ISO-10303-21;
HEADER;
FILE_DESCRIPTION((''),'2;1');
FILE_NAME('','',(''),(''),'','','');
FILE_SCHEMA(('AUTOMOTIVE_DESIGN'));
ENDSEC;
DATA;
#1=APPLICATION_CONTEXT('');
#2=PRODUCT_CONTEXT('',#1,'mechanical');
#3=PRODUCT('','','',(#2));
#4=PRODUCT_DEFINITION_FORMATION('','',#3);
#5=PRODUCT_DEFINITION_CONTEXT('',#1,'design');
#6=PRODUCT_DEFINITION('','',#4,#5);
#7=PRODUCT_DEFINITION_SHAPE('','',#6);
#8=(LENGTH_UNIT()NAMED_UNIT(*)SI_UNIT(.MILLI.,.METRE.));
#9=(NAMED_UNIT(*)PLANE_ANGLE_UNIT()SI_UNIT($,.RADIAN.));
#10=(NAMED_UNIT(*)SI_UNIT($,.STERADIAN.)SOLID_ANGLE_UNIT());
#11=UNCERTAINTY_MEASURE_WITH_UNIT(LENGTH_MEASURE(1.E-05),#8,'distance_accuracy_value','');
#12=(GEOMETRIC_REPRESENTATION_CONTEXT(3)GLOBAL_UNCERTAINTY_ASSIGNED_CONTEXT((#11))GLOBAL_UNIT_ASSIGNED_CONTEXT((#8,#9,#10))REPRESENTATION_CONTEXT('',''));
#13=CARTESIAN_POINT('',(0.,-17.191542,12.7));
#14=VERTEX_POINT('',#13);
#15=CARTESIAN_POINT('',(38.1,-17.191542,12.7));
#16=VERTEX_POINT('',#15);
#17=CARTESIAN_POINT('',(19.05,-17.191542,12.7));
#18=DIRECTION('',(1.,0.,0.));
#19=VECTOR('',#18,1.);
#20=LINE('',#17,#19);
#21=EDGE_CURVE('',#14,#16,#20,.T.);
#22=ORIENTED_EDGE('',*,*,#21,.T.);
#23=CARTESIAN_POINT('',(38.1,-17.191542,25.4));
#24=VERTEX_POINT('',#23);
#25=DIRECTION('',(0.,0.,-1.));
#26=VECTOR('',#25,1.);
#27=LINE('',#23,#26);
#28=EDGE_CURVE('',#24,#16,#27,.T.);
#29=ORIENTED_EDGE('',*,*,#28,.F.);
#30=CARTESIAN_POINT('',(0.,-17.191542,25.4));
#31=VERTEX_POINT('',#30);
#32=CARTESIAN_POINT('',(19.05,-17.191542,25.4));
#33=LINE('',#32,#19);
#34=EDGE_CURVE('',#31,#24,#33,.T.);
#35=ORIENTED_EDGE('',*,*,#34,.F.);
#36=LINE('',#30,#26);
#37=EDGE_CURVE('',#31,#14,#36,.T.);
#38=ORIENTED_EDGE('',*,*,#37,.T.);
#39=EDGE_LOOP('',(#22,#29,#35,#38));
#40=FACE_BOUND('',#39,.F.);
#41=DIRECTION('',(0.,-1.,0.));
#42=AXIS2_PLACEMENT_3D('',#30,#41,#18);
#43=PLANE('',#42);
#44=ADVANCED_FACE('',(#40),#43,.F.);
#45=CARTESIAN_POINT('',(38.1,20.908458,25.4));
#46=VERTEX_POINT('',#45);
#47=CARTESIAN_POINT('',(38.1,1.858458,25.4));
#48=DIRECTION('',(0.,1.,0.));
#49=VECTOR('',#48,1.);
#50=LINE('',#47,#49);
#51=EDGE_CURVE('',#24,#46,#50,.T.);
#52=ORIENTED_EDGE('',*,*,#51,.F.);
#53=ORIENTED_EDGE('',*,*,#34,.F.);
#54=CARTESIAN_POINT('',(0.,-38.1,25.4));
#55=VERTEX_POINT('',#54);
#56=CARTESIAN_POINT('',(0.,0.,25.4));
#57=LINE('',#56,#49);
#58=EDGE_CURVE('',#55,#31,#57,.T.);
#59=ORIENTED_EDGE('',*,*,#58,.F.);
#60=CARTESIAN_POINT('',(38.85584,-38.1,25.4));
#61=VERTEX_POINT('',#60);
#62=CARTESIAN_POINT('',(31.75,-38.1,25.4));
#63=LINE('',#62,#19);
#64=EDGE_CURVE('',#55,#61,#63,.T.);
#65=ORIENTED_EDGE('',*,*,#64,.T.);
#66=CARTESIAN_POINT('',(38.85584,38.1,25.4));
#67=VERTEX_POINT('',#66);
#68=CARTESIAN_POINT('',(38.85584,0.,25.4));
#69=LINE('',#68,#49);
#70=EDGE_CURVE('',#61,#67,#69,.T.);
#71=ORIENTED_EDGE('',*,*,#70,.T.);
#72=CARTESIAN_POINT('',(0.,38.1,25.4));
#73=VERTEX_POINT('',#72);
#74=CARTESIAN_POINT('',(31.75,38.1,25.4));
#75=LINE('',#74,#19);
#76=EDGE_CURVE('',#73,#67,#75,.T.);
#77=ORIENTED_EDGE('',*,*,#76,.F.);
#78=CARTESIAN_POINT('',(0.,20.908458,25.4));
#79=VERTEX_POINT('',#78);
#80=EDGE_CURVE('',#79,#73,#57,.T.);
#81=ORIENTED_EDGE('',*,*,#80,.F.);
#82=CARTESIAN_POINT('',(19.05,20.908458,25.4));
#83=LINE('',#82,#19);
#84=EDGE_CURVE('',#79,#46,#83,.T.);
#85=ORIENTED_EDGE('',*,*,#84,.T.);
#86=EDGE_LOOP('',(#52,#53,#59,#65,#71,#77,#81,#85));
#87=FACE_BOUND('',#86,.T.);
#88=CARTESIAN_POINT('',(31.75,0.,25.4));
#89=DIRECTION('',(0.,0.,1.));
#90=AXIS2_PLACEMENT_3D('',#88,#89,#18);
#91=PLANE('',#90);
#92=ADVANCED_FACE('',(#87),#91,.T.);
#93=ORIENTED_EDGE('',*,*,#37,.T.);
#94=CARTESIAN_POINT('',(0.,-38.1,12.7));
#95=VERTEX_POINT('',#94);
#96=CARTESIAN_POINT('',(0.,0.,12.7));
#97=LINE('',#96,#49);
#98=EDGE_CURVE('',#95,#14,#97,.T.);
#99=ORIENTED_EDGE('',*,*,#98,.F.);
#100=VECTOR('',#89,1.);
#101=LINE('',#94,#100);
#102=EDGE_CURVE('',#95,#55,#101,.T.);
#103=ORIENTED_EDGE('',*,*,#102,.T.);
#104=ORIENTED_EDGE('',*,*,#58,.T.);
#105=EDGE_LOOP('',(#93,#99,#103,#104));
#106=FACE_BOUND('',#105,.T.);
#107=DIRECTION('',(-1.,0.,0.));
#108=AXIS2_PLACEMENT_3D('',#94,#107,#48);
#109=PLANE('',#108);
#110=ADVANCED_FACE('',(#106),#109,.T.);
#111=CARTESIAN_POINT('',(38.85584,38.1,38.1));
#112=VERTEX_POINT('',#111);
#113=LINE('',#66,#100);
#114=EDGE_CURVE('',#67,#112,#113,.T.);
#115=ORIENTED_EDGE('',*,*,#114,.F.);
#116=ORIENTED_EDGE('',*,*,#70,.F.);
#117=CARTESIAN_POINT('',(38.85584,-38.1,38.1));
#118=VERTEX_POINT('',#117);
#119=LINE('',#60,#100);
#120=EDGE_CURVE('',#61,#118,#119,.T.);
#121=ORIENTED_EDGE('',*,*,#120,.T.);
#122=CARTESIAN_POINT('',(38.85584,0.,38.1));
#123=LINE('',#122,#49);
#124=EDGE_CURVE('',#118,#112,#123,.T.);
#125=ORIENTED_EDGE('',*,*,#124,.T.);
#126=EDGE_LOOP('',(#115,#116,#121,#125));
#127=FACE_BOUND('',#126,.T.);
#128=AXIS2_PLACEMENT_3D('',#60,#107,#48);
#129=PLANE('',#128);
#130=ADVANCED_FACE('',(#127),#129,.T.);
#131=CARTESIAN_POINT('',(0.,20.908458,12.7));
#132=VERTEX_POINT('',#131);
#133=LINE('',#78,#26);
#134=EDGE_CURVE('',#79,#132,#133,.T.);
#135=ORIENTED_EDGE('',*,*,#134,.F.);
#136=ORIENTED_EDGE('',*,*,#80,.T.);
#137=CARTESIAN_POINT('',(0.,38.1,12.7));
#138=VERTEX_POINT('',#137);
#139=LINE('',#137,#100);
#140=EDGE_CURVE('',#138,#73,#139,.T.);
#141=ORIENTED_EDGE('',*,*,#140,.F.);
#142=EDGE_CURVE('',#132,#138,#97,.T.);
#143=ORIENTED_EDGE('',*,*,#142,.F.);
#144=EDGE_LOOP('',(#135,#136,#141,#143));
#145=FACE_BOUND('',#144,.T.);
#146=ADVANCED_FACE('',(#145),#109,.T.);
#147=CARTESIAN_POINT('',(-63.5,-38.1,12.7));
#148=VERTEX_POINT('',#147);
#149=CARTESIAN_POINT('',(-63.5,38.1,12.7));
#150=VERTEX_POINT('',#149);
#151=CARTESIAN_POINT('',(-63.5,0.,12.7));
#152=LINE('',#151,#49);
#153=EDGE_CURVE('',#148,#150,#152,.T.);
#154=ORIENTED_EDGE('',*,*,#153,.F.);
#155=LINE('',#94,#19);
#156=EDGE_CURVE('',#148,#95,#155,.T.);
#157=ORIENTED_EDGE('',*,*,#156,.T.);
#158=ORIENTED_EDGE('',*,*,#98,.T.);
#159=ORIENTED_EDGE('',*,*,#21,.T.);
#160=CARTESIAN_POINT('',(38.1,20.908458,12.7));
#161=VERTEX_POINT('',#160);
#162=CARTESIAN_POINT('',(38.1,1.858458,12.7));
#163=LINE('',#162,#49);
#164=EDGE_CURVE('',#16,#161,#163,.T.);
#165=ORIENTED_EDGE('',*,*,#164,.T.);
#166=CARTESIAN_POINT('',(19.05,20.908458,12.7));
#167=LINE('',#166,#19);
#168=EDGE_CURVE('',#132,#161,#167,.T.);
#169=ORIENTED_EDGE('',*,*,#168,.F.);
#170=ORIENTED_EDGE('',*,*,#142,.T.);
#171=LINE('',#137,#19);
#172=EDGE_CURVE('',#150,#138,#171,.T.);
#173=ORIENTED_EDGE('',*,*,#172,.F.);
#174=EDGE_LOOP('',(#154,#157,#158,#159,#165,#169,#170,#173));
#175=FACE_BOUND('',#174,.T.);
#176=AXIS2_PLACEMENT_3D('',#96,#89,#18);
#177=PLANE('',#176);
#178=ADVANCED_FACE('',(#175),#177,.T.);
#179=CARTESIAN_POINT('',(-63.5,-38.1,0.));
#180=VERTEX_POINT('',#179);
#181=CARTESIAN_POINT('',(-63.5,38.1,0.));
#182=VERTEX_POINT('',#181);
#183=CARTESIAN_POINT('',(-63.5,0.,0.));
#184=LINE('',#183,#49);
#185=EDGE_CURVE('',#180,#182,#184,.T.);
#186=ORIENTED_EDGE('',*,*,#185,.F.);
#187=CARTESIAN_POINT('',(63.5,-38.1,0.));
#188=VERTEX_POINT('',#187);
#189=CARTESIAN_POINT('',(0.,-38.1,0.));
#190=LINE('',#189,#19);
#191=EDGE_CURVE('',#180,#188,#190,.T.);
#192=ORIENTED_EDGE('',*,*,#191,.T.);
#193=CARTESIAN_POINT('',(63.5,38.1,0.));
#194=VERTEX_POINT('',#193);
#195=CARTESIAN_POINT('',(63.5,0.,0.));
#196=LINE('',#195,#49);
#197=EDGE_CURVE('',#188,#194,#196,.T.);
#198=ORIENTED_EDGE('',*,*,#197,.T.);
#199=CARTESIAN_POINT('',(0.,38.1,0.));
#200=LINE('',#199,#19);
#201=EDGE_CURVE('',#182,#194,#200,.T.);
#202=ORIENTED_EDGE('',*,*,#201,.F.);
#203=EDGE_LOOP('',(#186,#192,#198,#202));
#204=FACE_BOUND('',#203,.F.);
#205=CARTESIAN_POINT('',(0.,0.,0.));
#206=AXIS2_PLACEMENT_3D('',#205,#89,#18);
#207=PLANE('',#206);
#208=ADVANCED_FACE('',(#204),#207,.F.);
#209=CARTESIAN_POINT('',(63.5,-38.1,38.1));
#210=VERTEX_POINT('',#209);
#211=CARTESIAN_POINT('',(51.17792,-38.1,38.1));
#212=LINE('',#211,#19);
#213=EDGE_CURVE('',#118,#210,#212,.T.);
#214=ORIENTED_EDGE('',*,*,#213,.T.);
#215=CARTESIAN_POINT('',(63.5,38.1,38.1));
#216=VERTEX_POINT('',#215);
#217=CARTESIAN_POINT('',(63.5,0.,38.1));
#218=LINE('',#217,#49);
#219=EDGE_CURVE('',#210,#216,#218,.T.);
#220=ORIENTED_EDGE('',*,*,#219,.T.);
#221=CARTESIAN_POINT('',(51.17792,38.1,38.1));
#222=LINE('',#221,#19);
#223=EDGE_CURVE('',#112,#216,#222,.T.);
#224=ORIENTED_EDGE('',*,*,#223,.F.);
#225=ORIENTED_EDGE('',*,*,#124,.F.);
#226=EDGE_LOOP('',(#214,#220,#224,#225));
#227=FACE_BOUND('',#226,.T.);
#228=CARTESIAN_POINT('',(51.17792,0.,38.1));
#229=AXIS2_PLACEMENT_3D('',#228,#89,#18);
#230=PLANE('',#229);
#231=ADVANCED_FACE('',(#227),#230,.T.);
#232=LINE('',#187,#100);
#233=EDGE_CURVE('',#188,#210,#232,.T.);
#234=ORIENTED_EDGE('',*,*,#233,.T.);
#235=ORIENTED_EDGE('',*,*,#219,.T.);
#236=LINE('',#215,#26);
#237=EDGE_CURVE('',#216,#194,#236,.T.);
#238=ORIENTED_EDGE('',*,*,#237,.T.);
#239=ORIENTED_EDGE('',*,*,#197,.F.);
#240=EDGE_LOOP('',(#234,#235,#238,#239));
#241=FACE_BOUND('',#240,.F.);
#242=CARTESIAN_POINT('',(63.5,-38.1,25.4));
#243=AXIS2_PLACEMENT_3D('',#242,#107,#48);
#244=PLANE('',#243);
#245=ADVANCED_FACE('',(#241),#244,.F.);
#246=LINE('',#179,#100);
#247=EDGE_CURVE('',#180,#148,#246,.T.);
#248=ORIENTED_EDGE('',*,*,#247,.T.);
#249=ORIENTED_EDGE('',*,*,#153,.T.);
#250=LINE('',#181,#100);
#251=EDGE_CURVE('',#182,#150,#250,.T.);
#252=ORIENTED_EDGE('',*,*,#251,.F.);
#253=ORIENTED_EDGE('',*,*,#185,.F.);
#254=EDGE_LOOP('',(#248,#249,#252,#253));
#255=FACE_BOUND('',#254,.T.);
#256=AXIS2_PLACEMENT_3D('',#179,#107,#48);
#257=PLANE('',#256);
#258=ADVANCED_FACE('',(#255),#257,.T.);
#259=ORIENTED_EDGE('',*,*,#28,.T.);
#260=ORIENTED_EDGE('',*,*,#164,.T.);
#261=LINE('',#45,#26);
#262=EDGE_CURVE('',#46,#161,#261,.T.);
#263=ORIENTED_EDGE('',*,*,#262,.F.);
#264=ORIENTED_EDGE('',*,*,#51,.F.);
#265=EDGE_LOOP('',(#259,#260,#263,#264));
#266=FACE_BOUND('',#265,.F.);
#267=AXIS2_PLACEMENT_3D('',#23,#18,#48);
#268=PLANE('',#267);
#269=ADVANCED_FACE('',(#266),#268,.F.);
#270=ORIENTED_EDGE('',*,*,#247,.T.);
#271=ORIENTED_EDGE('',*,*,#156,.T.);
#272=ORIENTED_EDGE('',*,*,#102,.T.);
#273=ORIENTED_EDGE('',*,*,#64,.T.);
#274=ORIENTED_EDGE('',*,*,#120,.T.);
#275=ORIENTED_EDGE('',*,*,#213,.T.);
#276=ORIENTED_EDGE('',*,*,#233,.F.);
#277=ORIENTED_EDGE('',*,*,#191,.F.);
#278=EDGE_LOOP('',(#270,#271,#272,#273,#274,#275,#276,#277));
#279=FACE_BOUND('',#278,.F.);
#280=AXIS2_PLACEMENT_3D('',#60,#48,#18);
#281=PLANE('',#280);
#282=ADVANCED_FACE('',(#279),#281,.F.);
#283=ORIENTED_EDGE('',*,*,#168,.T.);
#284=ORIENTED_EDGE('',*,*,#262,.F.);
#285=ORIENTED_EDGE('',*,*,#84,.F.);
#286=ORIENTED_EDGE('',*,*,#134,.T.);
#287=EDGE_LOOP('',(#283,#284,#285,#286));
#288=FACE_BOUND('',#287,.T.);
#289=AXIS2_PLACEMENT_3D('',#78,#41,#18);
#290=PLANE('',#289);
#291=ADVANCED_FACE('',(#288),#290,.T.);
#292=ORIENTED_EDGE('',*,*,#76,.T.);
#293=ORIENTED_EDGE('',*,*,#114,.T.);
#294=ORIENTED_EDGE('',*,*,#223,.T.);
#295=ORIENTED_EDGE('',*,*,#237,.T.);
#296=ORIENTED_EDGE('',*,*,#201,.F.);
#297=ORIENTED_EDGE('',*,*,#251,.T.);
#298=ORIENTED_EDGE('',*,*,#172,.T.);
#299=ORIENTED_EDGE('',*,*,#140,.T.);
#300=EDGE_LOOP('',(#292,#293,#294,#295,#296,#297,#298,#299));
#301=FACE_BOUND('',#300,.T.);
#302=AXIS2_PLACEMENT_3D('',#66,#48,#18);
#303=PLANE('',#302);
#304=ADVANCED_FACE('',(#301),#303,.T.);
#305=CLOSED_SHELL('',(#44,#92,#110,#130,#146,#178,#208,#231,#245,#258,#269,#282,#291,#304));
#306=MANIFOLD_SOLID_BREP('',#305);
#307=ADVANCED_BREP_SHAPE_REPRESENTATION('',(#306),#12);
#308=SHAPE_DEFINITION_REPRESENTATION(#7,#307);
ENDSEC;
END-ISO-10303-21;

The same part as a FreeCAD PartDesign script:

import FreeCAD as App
import Part
import Sketcher
from FreeCAD import Vector
Q = App.Units.Quantity

doc = App.newDocument("Part")
body = doc.addObject("PartDesign::Body", "Body")

sketch1 = body.newObject("Sketcher::SketchObject", "Sketch")
sketch1.AttachmentSupport = (doc.getObject("XY_Plane"), [""])
sketch1.MapMode = "FlatFace"
sketch1.addGeometry([
    Part.LineSegment(Vector(-64, 38, 0), Vector(-64, -38, 0)),
    Part.LineSegment(Vector(-64, -38, 0), Vector(64, -38, 0)),
    Part.LineSegment(Vector(64, -38, 0), Vector(64, 38, 0)),
    Part.LineSegment(Vector(64, 38, 0), Vector(-64, 38, 0)),
], False)
sketch1.addConstraint([
    Sketcher.Constraint("Coincident", 0, 2, 1, 1),
    Sketcher.Constraint("Coincident", 1, 2, 2, 1),
    Sketcher.Constraint("Coincident", 2, 2, 3, 1),
    Sketcher.Constraint("Coincident", 3, 2, 0, 1),
    Sketcher.Constraint("Vertical", 0),
    Sketcher.Constraint("Horizontal", 1),
    Sketcher.Constraint("Vertical", 2),
    Sketcher.Constraint("Horizontal", 3),
    Sketcher.Constraint("Symmetric", 0, 2, 2, 2, -1, 1),
    Sketcher.Constraint("DistanceX", 1, 1, 1, 2, Q("5 in")),
    Sketcher.Constraint("DistanceY", 0, 2, 0, 1, Q("3 in")),
])
pad1 = body.newObject("PartDesign::Pad", "Pad")
pad1.Profile = sketch1
pad1.Length = Q("0.5 in")

sketch2 = body.newObject("Sketcher::SketchObject", "Sketch001")
sketch2.AttachmentSupport = (doc.getObject("XY_Plane"), [""])
sketch2.MapMode = "FlatFace"
sketch2.AttachmentOffset = App.Placement(Vector(0, 0, 0.5 * 25.4), App.Rotation())
sketch2.addGeometry([
    Part.LineSegment(Vector(0, 38, 0), Vector(0, -38, 0)),
    Part.LineSegment(Vector(0, -38, 0), Vector(64, -38, 0)),
    Part.LineSegment(Vector(64, -38, 0), Vector(64, 38, 0)),
    Part.LineSegment(Vector(64, 38, 0), Vector(0, 38, 0)),
], False)
sketch2.addConstraint([
    Sketcher.Constraint("Coincident", 0, 2, 1, 1),
    Sketcher.Constraint("Coincident", 1, 2, 2, 1),
    Sketcher.Constraint("Coincident", 2, 2, 3, 1),
    Sketcher.Constraint("Coincident", 3, 2, 0, 1),
    Sketcher.Constraint("Vertical", 0),
    Sketcher.Constraint("Horizontal", 1),
    Sketcher.Constraint("Vertical", 2),
    Sketcher.Constraint("Horizontal", 3),
    Sketcher.Constraint("Symmetric", 0, 2, 3, 2, -1, 1),
    Sketcher.Constraint("DistanceY", 0, 2, 0, 1, Q("3 in")),
    Sketcher.Constraint("DistanceX", 1, 1, 1, 2, Q("2.5 in")),
])
pad2 = body.newObject("PartDesign::Pad", "Pad001")
pad2.Profile = sketch2
pad2.Length = Q("0.5 in")

sketch3 = body.newObject("Sketcher::SketchObject", "Sketch002")
sketch3.AttachmentSupport = (doc.getObject("XY_Plane"), [""])
sketch3.MapMode = "FlatFace"
sketch3.AttachmentOffset = App.Placement(Vector(0, 0, 1 * 25.4), App.Rotation())
sketch3.addGeometry([
    Part.LineSegment(Vector(0, 21, 0), Vector(0, -17, 0)),
    Part.LineSegment(Vector(0, -17, 0), Vector(38, -17, 0)),
    Part.LineSegment(Vector(38, -17, 0), Vector(38, 21, 0)),
    Part.LineSegment(Vector(38, 21, 0), Vector(0, 21, 0)),
], False)
sketch3.addConstraint([
    Sketcher.Constraint("Coincident", 0, 2, 1, 1),
    Sketcher.Constraint("Coincident", 1, 2, 2, 1),
    Sketcher.Constraint("Coincident", 2, 2, 3, 1),
    Sketcher.Constraint("Coincident", 3, 2, 0, 1),
    Sketcher.Constraint("Vertical", 0),
    Sketcher.Constraint("Horizontal", 1),
    Sketcher.Constraint("Vertical", 2),
    Sketcher.Constraint("Horizontal", 3),
    Sketcher.Constraint("PointOnObject", 0, 2, -2),
    Sketcher.Constraint("Equal", 3, 0),
    Sketcher.Constraint("DistanceX", 1, 1, 1, 2, Q("1.5 in")),
    Sketcher.Constraint("DistanceY", 0, 2, -1, 1, Q("17.191542 mm")),
])
pocket1 = body.newObject("PartDesign::Pocket", "Pocket")
pocket1.Profile = sketch3
pocket1.Length = Q("0.5 in")

sketch4 = body.newObject("Sketcher::SketchObject", "Sketch003")
sketch4.AttachmentSupport = (doc.getObject("XY_Plane"), [""])
sketch4.MapMode = "FlatFace"
sketch4.AttachmentOffset = App.Placement(Vector(0, 0, 1 * 25.4), App.Rotation())
sketch4.addGeometry([
    Part.LineSegment(Vector(39, 38, 0), Vector(39, -38, 0)),
    Part.LineSegment(Vector(39, -38, 0), Vector(64, -38, 0)),
    Part.LineSegment(Vector(64, -38, 0), Vector(64, 38, 0)),
    Part.LineSegment(Vector(64, 38, 0), Vector(39, 38, 0)),
], False)
sketch4.addConstraint([
    Sketcher.Constraint("Coincident", 0, 2, 1, 1),
    Sketcher.Constraint("Coincident", 1, 2, 2, 1),
    Sketcher.Constraint("Coincident", 2, 2, 3, 1),
    Sketcher.Constraint("Coincident", 3, 2, 0, 1),
    Sketcher.Constraint("Vertical", 0),
    Sketcher.Constraint("Horizontal", 1),
    Sketcher.Constraint("Vertical", 2),
    Sketcher.Constraint("Horizontal", 3),
    Sketcher.Constraint("DistanceY", 0, 2, 0, 1, Q("3 in")),
    Sketcher.Constraint("DistanceY", 0, 2, -1, 1, Q("1.5 in")),
    Sketcher.Constraint("DistanceX", -1, 1, 1, 2, Q("2.5 in")),
    Sketcher.Constraint("DistanceX", 1, 1, 1, 2, Q("24.64416 mm")),
])
pad3 = body.newObject("PartDesign::Pad", "Pad002")
pad3.Profile = sketch4
pad3.Length = Q("0.5 in")

doc.recompute()
